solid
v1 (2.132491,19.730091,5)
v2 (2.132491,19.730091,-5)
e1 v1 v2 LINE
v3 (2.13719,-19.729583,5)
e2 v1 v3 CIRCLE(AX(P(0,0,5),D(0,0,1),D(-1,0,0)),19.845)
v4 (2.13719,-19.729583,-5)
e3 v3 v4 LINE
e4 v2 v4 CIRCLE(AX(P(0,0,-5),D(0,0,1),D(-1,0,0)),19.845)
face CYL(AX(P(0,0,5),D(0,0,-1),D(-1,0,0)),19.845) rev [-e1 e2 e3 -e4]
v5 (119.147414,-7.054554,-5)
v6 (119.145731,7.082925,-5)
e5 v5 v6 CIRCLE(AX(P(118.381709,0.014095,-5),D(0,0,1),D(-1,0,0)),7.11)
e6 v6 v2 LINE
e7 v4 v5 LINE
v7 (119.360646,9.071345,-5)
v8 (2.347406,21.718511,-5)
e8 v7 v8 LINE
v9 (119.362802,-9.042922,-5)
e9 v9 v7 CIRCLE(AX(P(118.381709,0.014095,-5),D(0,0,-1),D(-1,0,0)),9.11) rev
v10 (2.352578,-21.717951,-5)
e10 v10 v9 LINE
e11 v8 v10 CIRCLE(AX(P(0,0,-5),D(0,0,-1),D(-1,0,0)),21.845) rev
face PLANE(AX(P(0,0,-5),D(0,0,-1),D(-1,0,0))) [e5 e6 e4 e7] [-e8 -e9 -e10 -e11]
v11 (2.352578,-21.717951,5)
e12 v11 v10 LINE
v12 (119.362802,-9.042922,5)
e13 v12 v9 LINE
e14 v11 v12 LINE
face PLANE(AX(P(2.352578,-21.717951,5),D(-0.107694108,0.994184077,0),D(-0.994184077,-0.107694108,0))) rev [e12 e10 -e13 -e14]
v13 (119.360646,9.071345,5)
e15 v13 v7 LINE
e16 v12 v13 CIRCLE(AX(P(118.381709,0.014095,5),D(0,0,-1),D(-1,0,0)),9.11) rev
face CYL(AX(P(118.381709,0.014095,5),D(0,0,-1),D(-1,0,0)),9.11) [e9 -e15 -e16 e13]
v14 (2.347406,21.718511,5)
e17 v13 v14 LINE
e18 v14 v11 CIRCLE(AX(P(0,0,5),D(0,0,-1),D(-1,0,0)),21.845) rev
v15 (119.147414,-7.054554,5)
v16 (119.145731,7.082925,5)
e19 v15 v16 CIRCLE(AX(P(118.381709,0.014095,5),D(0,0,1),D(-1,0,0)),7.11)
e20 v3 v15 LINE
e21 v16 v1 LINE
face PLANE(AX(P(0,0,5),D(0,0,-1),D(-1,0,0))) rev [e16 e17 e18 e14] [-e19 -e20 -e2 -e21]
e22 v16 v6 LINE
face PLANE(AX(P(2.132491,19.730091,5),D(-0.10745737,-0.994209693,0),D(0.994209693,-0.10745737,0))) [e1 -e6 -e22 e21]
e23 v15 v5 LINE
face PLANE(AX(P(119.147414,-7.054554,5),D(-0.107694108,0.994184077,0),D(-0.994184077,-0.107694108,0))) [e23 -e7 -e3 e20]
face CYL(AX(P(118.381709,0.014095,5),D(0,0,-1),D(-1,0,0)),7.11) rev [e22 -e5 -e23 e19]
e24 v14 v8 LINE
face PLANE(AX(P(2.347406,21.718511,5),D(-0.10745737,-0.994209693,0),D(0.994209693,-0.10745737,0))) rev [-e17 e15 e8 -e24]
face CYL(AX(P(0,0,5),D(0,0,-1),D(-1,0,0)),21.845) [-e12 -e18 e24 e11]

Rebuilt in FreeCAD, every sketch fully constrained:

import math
import FreeCAD as App
import Part
import Sketcher

V = App.Vector
Q = App.Units.Quantity

doc = App.newDocument("Part")
body = doc.addObject("PartDesign::Body", "Body")

sketch1 = body.newObject("Sketcher::SketchObject", "Sketch")
sketch1.AttachmentSupport = (doc.getObject("XY_Plane"), [""])
sketch1.MapMode = "FlatFace"
sketch1.addGeometry([
    Part.LineSegment(V(2, -22, 0), V(119, -9, 0)),
    Part.ArcOfCircle(Part.Circle(V(118, 0, 0), V(0, 0, 1), 9), math.radians(-84), math.radians(84)),
    Part.LineSegment(V(119, 9, 0), V(2, 22, 0)),
    Part.ArcOfCircle(Part.Circle(V(0, 0, 0), V(0, 0, 1), 22), math.radians(84), math.radians(276)),
    Part.LineSegment(V(119, -7, 0), V(2, -20, 0)),
    Part.ArcOfCircle(Part.Circle(V(0, 0, 0), V(0, 0, 1), 20), math.radians(84), math.radians(276)),
    Part.LineSegment(V(2, 20, 0), V(119, 7, 0)),
    Part.ArcOfCircle(Part.Circle(V(118, 0, 0), V(0, 0, 1), 7), math.radians(-84), math.radians(84)),
], False)
sketch1.addConstraint([
    Sketcher.Constraint("Tangent", 0, 2, 1, 1),
    Sketcher.Constraint("Tangent", 1, 2, 2, 1),
    Sketcher.Constraint("Tangent", 2, 2, 3, 1),
    Sketcher.Constraint("Tangent", 3, 2, 0, 1),
    Sketcher.Constraint("Tangent", 4, 2, 5, 2),
    Sketcher.Constraint("Tangent", 5, 1, 6, 1),
    Sketcher.Constraint("Tangent", 6, 2, 7, 2),
    Sketcher.Constraint("Tangent", 7, 1, 4, 1),
    Sketcher.Constraint("Coincident", 3, 3, -1, 1),
    Sketcher.Constraint("Coincident", 5, 3, -1, 1),
    Sketcher.Constraint("Coincident", 7, 3, 1, 3),
    Sketcher.Constraint("Parallel", 0, 4),
    Sketcher.Constraint("Radius", 1, Q("9.11 mm")),
    Sketcher.Constraint("Radius", 7, Q("7.11 mm")),
    Sketcher.Constraint("Radius", 3, Q("21.845 mm")),
    Sketcher.Constraint("DistanceX", 5, 1, 4, 2, Q("0.004698 mm")),
    Sketcher.Constraint("DistanceX", -1, 1, 1, 3, Q("118.381709 mm")),
])
pad1 = body.newObject("PartDesign::Pad", "Pad")
pad1.Profile = sketch1
pad1.Length = 10
pad1.Midplane = True

doc.recompute()
